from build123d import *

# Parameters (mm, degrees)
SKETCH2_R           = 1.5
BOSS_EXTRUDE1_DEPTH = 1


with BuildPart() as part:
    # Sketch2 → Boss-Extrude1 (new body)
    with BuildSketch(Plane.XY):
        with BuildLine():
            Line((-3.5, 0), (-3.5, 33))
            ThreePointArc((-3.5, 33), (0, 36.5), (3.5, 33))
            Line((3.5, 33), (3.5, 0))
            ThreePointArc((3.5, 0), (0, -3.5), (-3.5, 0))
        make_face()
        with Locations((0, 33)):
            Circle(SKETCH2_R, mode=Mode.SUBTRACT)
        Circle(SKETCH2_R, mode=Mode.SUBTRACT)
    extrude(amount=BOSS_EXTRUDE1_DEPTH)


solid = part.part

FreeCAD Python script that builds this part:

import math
import FreeCAD as App
import Part
import Sketcher
Q = App.Units.Quantity

doc = App.newDocument("Part")
body = doc.addObject("PartDesign::Body", "Body")

sketch1 = body.newObject("Sketcher::SketchObject", "Sketch")
sketch1.AttachmentSupport = (doc.getObject("XY_Plane"), [""])
sketch1.MapMode = "FlatFace"
sketch1.addGeometry([
    Part.LineSegment(App.Vector(-3.5, 33, 0), App.Vector(-3.5, 0, 0)),
    Part.ArcOfCircle(Part.Circle(App.Vector(0, 0, 0), App.Vector(0, 0, 1), 3.5), math.radians(180), math.radians(360)),
    Part.LineSegment(App.Vector(3.5, 0, 0), App.Vector(3.5, 33, 0)),
    Part.ArcOfCircle(Part.Circle(App.Vector(0, 33, 0), App.Vector(0, 0, 1), 3.5), math.radians(0), math.radians(180)),
    Part.Circle(App.Vector(0, 0, 0), App.Vector(0, 0, 1), 1.5),
    Part.Circle(App.Vector(0, 33, 0), App.Vector(0, 0, 1), 1.5),
], False)
sketch1.addConstraint([
    Sketcher.Constraint("Tangent", 0, 2, 1, 1),
    Sketcher.Constraint("Tangent", 1, 2, 2, 1),
    Sketcher.Constraint("Tangent", 2, 2, 3, 1),
    Sketcher.Constraint("Tangent", 3, 2, 0, 1),
    Sketcher.Constraint("Vertical", 0),
    Sketcher.Constraint("Vertical", 2),
    Sketcher.Constraint("Coincident", 1, 3, -1, 1),
    Sketcher.Constraint("Coincident", 4, 3, -1, 1),
    Sketcher.Constraint("Coincident", 5, 3, 3, 3),
    Sketcher.Constraint("Equal", 4, 5),
    Sketcher.Constraint("Diameter", 4, Q("3 mm")),
    Sketcher.Constraint("Radius", 1, Q("3.5 mm")),
    Sketcher.Constraint("DistanceY", 0, 2, 0, 1, Q("33 mm")),
])
pad1 = body.newObject("PartDesign::Pad", "Pad")
pad1.Profile = sketch1
pad1.Length = 1

doc.recompute()
